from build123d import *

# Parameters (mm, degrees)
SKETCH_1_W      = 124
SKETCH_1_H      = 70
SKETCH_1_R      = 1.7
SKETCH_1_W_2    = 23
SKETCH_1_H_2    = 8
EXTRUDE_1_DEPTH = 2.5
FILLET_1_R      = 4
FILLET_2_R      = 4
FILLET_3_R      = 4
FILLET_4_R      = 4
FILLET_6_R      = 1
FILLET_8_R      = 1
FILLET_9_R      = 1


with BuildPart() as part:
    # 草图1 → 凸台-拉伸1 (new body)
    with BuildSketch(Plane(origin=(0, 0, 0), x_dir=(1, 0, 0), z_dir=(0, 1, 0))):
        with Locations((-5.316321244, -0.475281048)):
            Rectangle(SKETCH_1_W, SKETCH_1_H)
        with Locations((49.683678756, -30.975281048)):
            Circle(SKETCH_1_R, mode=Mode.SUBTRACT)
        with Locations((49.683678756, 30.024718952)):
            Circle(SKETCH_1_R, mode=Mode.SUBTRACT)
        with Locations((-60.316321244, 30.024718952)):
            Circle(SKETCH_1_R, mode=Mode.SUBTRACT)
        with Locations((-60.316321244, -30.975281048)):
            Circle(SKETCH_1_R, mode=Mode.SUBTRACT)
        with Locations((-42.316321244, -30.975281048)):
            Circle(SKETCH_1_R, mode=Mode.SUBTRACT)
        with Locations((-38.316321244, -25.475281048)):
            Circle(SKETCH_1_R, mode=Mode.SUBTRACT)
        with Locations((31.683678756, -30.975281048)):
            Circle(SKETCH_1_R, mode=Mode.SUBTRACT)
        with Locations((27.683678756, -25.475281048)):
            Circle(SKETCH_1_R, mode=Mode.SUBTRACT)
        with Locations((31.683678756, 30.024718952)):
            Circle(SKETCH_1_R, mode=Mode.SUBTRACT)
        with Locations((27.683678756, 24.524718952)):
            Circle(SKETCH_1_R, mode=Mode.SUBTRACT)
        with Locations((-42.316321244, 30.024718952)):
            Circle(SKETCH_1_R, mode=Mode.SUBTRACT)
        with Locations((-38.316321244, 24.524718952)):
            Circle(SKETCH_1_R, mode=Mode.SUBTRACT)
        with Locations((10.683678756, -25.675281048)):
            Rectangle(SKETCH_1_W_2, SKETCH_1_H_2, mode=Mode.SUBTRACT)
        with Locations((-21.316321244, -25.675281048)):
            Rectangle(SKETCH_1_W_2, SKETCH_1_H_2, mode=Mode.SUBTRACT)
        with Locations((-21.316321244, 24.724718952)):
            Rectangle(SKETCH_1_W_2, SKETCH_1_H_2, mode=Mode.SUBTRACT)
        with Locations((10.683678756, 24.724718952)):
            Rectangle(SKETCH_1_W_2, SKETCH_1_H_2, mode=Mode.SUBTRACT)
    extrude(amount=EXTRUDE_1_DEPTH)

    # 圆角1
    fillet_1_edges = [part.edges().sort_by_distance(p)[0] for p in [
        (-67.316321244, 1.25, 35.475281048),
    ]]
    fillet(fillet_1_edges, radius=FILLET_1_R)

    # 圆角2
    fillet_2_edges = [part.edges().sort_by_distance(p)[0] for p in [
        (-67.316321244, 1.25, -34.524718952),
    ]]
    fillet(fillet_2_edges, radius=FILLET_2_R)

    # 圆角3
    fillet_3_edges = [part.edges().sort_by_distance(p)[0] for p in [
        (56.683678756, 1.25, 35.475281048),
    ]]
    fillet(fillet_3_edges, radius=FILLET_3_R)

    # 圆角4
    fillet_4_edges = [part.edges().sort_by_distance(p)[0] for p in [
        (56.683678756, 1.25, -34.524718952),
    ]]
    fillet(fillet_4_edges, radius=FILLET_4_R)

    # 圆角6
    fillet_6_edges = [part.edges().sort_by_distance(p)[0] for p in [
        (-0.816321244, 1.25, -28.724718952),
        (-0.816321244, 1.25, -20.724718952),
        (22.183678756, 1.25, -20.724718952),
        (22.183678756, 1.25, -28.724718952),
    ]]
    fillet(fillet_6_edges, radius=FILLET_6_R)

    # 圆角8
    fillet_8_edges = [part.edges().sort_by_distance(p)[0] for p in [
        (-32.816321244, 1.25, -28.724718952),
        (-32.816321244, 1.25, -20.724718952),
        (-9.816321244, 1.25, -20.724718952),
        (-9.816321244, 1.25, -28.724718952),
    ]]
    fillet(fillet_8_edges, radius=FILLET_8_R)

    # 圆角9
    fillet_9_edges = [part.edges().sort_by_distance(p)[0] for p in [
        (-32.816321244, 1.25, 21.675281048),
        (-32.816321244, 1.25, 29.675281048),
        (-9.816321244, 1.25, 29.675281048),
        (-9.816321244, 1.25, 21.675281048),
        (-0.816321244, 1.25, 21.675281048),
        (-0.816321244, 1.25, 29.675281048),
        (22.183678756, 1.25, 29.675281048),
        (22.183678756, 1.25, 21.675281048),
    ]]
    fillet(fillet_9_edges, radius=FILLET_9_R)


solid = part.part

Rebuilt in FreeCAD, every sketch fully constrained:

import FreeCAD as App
import Part
import Sketcher

V = App.Vector
Q = App.Units.Quantity


def edges_at(feature, points):
    """Names of the edges that pass closest to the given points."""
    edges = feature.Shape.Edges
    near = lambda p: min(range(len(edges)), key=lambda i: edges[i].distToShape(Part.Vertex(*p))[0])
    return sorted({f"Edge{near(p) + 1}" for p in points})


def add_polygon(sketch, points):
    """Adds a closed chain of lines whose ends are joined by coincident constraints."""
    first, n = sketch.GeometryCount, len(points)
    for a, b in zip(points, points[1:] + points[:1]):
        sketch.addGeometry(Part.LineSegment(App.Vector(*a, 0), App.Vector(*b, 0)), False)
    for i in range(n):
        sketch.addConstraint(Sketcher.Constraint("Coincident", first + i, 2, first + (i + 1) % n, 1))

doc = App.newDocument("Part")
body = doc.addObject("PartDesign::Body", "Body")

# Sketch on XZ plane
sketch1 = doc.addObject("Sketcher::SketchObject", "Sketch")
body.addObject(sketch1)
sketch1.AttachmentSupport = (doc.XZ_Plane, [""])
sketch1.MapMode = "FlatFace"
add_polygon(sketch1, [(-67.316321, -34.524719), (-67.316321, 35.475281), (56.683679, 35.475281), (56.683679, -34.524719)])  # lines 0-3
sketch1.addGeometry(Part.Circle(V(-60.316321, 30.975281, 0), V(0, 0, 1), 1.7), False)  # 4
sketch1.addGeometry(Part.Circle(V(-42.316321, 30.975281, 0), V(0, 0, 1), 1.7), False)  # 5
sketch1.addGeometry(Part.Circle(V(-38.316321, 25.475281, 0), V(0, 0, 1), 1.7), False)  # 6
add_polygon(sketch1, [(-9.816321, 29.675281), (-32.816321, 29.675281), (-32.816321, 21.675281), (-9.816321, 21.675281)])  # lines 7-10
add_polygon(sketch1, [(22.183679, 29.675281), (-0.816321, 29.675281), (-0.816321, 21.675281), (22.183679, 21.675281)])  # lines 11-14
sketch1.addGeometry(Part.Circle(V(31.683679, 30.975281, 0), V(0, 0, 1), 1.7), False)  # 15
sketch1.addGeometry(Part.Circle(V(27.683679, 25.475281, 0), V(0, 0, 1), 1.7), False)  # 16
sketch1.addGeometry(Part.Circle(V(49.683679, 30.975281, 0), V(0, 0, 1), 1.7), False)  # 17
sketch1.addGeometry(Part.Circle(V(-60.316321, -30.024719, 0), V(0, 0, 1), 1.7), False)  # 18
sketch1.addGeometry(Part.Circle(V(-38.316321, -24.524719, 0), V(0, 0, 1), 1.7), False)  # 19
sketch1.addGeometry(Part.Circle(V(-42.316321, -30.024719, 0), V(0, 0, 1), 1.7), False)  # 20
add_polygon(sketch1, [(-9.816321, -20.724719), (-32.816321, -20.724719), (-32.816321, -28.724719), (-9.816321, -28.724719)])  # lines 21-24
add_polygon(sketch1, [(22.183679, -20.724719), (-0.816321, -20.724719), (-0.816321, -28.724719), (22.183679, -28.724719)])  # lines 25-28
sketch1.addGeometry(Part.Circle(V(27.683679, -24.524719, 0), V(0, 0, 1), 1.7), False)  # 29
sketch1.addGeometry(Part.Circle(V(31.683679, -30.024719, 0), V(0, 0, 1), 1.7), False)  # 30
sketch1.addGeometry(Part.Circle(V(49.683679, -30.024719, 0), V(0, 0, 1), 1.7), False)  # 31
sketch1.addConstraint([
    Sketcher.Constraint("Vertical", 0),
    Sketcher.Constraint("Horizontal", 1),
    Sketcher.Constraint("Vertical", 2),
    Sketcher.Constraint("Horizontal", 3),
    Sketcher.Constraint("Horizontal", 7),
    Sketcher.Constraint("Vertical", 8),
    Sketcher.Constraint("Horizontal", 9),
    Sketcher.Constraint("Vertical", 10),
    Sketcher.Constraint("Horizontal", 11),
    Sketcher.Constraint("Vertical", 12),
    Sketcher.Constraint("Horizontal", 13),
    Sketcher.Constraint("Vertical", 14),
    Sketcher.Constraint("Horizontal", 21),
    Sketcher.Constraint("Vertical", 22),
    Sketcher.Constraint("Horizontal", 23),
    Sketcher.Constraint("Vertical", 24),
    Sketcher.Constraint("Horizontal", 25),
    Sketcher.Constraint("Vertical", 26),
    Sketcher.Constraint("Horizontal", 27),
    Sketcher.Constraint("Vertical", 28),
    Sketcher.Constraint("Equal", 4, 5),
    Sketcher.Constraint("Equal", 5, 6),
    Sketcher.Constraint("Equal", 6, 15),
    Sketcher.Constraint("Equal", 15, 16),
    Sketcher.Constraint("Equal", 16, 17),
    Sketcher.Constraint("Equal", 17, 18),
    Sketcher.Constraint("Equal", 18, 19),
    Sketcher.Constraint("Equal", 19, 20),
    Sketcher.Constraint("Equal", 20, 29),
    Sketcher.Constraint("Equal", 29, 30),
    Sketcher.Constraint("Equal", 30, 31),
    Sketcher.Constraint("Horizontal", 4, 3, 5, 3),
    Sketcher.Constraint("Horizontal", 5, 3, 15, 3),
    Sketcher.Constraint("Horizontal", 6, 3, 16, 3),
    Sketcher.Constraint("Horizontal", 15, 3, 17, 3),
    Sketcher.Constraint("Horizontal", 18, 3, 20, 3),
    Sketcher.Constraint("Horizontal", 19, 3, 29, 3),
    Sketcher.Constraint("Horizontal", 20, 3, 30, 3),
    Sketcher.Constraint("Horizontal", 30, 3, 31, 3),
    Sketcher.Constraint("Horizontal", 10, 2, 11, 2),
    Sketcher.Constraint("Horizontal", 9, 2, 12, 2),
    Sketcher.Constraint("Horizontal", 24, 2, 25, 2),
    Sketcher.Constraint("Horizontal", 23, 2, 26, 2),
    Sketcher.Constraint("Vertical", 4, 3, 18, 3),
    Sketcher.Constraint("Vertical", 6, 3, 19, 3),
    Sketcher.Constraint("Vertical", 5, 3, 20, 3),
    Sketcher.Constraint("Vertical", 16, 3, 29, 3),
    Sketcher.Constraint("Vertical", 15, 3, 30, 3),
    Sketcher.Constraint("Vertical", 17, 3, 31, 3),
    Sketcher.Constraint("Vertical", 8, 2, 21, 2),
    Sketcher.Constraint("Vertical", 10, 2, 23, 2),
    Sketcher.Constraint("Vertical", 12, 2, 25, 2),
    Sketcher.Constraint("Vertical", 14, 2, 27, 2),
    Sketcher.Constraint("Equal", 9, 11),
    Sketcher.Constraint("Equal", 14, 22),
    Sketcher.Constraint("Diameter", 4, Q("3.4 mm")),
    Sketcher.Constraint("DistanceX", 1, 1, 1, 2, Q("124 mm")),
    Sketcher.Constraint("DistanceX", 7, 2, 7, 1, Q("23 mm")),
    Sketcher.Constraint("DistanceY", 0, 1, 0, 2, Q("70 mm")),
    Sketcher.Constraint("DistanceY", 8, 2, 8, 1, Q("8 mm")),
    Sketcher.Constraint("DistanceX", 4, 3, 5, 3, Q("18 mm")),
    Sketcher.Constraint("DistanceX", 5, 3, 6, 3, Q("4 mm")),
    Sketcher.Constraint("DistanceX", 6, 3, 15, 3, Q("70 mm")),
    Sketcher.Constraint("DistanceX", 16, 3, 15, 3, Q("4 mm")),
    Sketcher.Constraint("DistanceX", 15, 3, 17, 3, Q("18 mm")),
    Sketcher.Constraint("DistanceY", 18, 3, 4, 3, Q("61 mm")),
    Sketcher.Constraint("DistanceY", 19, 3, 6, 3, Q("50 mm")),
    Sketcher.Constraint("DistanceX", 0, 2, 4, 3, Q("7 mm")),
    Sketcher.Constraint("DistanceY", 6, 3, 0, 2, Q("10 mm")),
    Sketcher.Constraint("DistanceX", 10, 2, 11, 2, Q("9 mm")),
    Sketcher.Constraint("DistanceY", 6, 3, 5, 3, Q("5.5 mm")),
    Sketcher.Constraint("DistanceX", 6, 3, 7, 2, Q("5.5 mm")),
    Sketcher.Constraint("DistanceY", 6, 3, 7, 2, Q("4.2 mm")),
    Sketcher.Constraint("DistanceY", 19, 3, 21, 2, Q("3.8 mm")),
    Sketcher.Constraint("DistanceX", 4, 3, -1, 1, Q("60.316321 mm")),
    Sketcher.Constraint("DistanceY", -1, 1, 4, 3, Q("30.975281 mm")),
])
pad1 = doc.addObject("PartDesign::Pad", "Pad")
body.addObject(pad1)
pad1.Profile = sketch1
pad1.Length = 2.5
pad1.Reversed = True
doc.recompute()

fillet = doc.addObject("PartDesign::Fillet", "Fillet")
body.addObject(fillet)
fillet.Base = (pad1, edges_at(pad1, [(-67.316, 1.25, 35.475)]))
fillet.Radius = 4
doc.recompute()

fillet2 = doc.addObject("PartDesign::Fillet", "Fillet001")
body.addObject(fillet2)
fillet2.Base = (fillet, edges_at(fillet, [(-67.316, 1.25, -34.525)]))
fillet2.Radius = 4
doc.recompute()

fillet3 = doc.addObject("PartDesign::Fillet", "Fillet002")
body.addObject(fillet3)
fillet3.Base = (fillet2, edges_at(fillet2, [(56.684, 1.25, 35.475)]))
fillet3.Radius = 4
doc.recompute()

fillet4 = doc.addObject("PartDesign::Fillet", "Fillet003")
body.addObject(fillet4)
fillet4.Base = (fillet3, edges_at(fillet3, [(56.684, 1.25, -34.525)]))
fillet4.Radius = 4
doc.recompute()

fillet5 = doc.addObject("PartDesign::Fillet", "Fillet004")
body.addObject(fillet5)
fillet5.Base = (fillet4, edges_at(fillet4, [
    (-0.816, 1.25, -28.725),
    (-0.816, 1.25, -20.725),
    (22.184, 1.25, -20.725),
    (22.184, 1.25, -28.725),
]))
fillet5.Radius = 1
doc.recompute()

fillet6 = doc.addObject("PartDesign::Fillet", "Fillet005")
body.addObject(fillet6)
fillet6.Base = (fillet5, edges_at(fillet5, [
    (-32.816, 1.25, -28.725),
    (-32.816, 1.25, -20.725),
    (-9.816, 1.25, -20.725),
    (-9.816, 1.25, -28.725),
]))
fillet6.Radius = 1
doc.recompute()

fillet7 = doc.addObject("PartDesign::Fillet", "Fillet006")
body.addObject(fillet7)
fillet7.Base = (fillet6, edges_at(fillet6, [
    (-32.816, 1.25, 21.675),
    (-32.816, 1.25, 29.675),
    (-9.816, 1.25, 29.675),
    (-9.816, 1.25, 21.675),
    (-0.816, 1.25, 21.675),
    (-0.816, 1.25, 29.675),
    (22.184, 1.25, 29.675),
    (22.184, 1.25, 21.675),
]))
fillet7.Radius = 1

doc.recompute()
